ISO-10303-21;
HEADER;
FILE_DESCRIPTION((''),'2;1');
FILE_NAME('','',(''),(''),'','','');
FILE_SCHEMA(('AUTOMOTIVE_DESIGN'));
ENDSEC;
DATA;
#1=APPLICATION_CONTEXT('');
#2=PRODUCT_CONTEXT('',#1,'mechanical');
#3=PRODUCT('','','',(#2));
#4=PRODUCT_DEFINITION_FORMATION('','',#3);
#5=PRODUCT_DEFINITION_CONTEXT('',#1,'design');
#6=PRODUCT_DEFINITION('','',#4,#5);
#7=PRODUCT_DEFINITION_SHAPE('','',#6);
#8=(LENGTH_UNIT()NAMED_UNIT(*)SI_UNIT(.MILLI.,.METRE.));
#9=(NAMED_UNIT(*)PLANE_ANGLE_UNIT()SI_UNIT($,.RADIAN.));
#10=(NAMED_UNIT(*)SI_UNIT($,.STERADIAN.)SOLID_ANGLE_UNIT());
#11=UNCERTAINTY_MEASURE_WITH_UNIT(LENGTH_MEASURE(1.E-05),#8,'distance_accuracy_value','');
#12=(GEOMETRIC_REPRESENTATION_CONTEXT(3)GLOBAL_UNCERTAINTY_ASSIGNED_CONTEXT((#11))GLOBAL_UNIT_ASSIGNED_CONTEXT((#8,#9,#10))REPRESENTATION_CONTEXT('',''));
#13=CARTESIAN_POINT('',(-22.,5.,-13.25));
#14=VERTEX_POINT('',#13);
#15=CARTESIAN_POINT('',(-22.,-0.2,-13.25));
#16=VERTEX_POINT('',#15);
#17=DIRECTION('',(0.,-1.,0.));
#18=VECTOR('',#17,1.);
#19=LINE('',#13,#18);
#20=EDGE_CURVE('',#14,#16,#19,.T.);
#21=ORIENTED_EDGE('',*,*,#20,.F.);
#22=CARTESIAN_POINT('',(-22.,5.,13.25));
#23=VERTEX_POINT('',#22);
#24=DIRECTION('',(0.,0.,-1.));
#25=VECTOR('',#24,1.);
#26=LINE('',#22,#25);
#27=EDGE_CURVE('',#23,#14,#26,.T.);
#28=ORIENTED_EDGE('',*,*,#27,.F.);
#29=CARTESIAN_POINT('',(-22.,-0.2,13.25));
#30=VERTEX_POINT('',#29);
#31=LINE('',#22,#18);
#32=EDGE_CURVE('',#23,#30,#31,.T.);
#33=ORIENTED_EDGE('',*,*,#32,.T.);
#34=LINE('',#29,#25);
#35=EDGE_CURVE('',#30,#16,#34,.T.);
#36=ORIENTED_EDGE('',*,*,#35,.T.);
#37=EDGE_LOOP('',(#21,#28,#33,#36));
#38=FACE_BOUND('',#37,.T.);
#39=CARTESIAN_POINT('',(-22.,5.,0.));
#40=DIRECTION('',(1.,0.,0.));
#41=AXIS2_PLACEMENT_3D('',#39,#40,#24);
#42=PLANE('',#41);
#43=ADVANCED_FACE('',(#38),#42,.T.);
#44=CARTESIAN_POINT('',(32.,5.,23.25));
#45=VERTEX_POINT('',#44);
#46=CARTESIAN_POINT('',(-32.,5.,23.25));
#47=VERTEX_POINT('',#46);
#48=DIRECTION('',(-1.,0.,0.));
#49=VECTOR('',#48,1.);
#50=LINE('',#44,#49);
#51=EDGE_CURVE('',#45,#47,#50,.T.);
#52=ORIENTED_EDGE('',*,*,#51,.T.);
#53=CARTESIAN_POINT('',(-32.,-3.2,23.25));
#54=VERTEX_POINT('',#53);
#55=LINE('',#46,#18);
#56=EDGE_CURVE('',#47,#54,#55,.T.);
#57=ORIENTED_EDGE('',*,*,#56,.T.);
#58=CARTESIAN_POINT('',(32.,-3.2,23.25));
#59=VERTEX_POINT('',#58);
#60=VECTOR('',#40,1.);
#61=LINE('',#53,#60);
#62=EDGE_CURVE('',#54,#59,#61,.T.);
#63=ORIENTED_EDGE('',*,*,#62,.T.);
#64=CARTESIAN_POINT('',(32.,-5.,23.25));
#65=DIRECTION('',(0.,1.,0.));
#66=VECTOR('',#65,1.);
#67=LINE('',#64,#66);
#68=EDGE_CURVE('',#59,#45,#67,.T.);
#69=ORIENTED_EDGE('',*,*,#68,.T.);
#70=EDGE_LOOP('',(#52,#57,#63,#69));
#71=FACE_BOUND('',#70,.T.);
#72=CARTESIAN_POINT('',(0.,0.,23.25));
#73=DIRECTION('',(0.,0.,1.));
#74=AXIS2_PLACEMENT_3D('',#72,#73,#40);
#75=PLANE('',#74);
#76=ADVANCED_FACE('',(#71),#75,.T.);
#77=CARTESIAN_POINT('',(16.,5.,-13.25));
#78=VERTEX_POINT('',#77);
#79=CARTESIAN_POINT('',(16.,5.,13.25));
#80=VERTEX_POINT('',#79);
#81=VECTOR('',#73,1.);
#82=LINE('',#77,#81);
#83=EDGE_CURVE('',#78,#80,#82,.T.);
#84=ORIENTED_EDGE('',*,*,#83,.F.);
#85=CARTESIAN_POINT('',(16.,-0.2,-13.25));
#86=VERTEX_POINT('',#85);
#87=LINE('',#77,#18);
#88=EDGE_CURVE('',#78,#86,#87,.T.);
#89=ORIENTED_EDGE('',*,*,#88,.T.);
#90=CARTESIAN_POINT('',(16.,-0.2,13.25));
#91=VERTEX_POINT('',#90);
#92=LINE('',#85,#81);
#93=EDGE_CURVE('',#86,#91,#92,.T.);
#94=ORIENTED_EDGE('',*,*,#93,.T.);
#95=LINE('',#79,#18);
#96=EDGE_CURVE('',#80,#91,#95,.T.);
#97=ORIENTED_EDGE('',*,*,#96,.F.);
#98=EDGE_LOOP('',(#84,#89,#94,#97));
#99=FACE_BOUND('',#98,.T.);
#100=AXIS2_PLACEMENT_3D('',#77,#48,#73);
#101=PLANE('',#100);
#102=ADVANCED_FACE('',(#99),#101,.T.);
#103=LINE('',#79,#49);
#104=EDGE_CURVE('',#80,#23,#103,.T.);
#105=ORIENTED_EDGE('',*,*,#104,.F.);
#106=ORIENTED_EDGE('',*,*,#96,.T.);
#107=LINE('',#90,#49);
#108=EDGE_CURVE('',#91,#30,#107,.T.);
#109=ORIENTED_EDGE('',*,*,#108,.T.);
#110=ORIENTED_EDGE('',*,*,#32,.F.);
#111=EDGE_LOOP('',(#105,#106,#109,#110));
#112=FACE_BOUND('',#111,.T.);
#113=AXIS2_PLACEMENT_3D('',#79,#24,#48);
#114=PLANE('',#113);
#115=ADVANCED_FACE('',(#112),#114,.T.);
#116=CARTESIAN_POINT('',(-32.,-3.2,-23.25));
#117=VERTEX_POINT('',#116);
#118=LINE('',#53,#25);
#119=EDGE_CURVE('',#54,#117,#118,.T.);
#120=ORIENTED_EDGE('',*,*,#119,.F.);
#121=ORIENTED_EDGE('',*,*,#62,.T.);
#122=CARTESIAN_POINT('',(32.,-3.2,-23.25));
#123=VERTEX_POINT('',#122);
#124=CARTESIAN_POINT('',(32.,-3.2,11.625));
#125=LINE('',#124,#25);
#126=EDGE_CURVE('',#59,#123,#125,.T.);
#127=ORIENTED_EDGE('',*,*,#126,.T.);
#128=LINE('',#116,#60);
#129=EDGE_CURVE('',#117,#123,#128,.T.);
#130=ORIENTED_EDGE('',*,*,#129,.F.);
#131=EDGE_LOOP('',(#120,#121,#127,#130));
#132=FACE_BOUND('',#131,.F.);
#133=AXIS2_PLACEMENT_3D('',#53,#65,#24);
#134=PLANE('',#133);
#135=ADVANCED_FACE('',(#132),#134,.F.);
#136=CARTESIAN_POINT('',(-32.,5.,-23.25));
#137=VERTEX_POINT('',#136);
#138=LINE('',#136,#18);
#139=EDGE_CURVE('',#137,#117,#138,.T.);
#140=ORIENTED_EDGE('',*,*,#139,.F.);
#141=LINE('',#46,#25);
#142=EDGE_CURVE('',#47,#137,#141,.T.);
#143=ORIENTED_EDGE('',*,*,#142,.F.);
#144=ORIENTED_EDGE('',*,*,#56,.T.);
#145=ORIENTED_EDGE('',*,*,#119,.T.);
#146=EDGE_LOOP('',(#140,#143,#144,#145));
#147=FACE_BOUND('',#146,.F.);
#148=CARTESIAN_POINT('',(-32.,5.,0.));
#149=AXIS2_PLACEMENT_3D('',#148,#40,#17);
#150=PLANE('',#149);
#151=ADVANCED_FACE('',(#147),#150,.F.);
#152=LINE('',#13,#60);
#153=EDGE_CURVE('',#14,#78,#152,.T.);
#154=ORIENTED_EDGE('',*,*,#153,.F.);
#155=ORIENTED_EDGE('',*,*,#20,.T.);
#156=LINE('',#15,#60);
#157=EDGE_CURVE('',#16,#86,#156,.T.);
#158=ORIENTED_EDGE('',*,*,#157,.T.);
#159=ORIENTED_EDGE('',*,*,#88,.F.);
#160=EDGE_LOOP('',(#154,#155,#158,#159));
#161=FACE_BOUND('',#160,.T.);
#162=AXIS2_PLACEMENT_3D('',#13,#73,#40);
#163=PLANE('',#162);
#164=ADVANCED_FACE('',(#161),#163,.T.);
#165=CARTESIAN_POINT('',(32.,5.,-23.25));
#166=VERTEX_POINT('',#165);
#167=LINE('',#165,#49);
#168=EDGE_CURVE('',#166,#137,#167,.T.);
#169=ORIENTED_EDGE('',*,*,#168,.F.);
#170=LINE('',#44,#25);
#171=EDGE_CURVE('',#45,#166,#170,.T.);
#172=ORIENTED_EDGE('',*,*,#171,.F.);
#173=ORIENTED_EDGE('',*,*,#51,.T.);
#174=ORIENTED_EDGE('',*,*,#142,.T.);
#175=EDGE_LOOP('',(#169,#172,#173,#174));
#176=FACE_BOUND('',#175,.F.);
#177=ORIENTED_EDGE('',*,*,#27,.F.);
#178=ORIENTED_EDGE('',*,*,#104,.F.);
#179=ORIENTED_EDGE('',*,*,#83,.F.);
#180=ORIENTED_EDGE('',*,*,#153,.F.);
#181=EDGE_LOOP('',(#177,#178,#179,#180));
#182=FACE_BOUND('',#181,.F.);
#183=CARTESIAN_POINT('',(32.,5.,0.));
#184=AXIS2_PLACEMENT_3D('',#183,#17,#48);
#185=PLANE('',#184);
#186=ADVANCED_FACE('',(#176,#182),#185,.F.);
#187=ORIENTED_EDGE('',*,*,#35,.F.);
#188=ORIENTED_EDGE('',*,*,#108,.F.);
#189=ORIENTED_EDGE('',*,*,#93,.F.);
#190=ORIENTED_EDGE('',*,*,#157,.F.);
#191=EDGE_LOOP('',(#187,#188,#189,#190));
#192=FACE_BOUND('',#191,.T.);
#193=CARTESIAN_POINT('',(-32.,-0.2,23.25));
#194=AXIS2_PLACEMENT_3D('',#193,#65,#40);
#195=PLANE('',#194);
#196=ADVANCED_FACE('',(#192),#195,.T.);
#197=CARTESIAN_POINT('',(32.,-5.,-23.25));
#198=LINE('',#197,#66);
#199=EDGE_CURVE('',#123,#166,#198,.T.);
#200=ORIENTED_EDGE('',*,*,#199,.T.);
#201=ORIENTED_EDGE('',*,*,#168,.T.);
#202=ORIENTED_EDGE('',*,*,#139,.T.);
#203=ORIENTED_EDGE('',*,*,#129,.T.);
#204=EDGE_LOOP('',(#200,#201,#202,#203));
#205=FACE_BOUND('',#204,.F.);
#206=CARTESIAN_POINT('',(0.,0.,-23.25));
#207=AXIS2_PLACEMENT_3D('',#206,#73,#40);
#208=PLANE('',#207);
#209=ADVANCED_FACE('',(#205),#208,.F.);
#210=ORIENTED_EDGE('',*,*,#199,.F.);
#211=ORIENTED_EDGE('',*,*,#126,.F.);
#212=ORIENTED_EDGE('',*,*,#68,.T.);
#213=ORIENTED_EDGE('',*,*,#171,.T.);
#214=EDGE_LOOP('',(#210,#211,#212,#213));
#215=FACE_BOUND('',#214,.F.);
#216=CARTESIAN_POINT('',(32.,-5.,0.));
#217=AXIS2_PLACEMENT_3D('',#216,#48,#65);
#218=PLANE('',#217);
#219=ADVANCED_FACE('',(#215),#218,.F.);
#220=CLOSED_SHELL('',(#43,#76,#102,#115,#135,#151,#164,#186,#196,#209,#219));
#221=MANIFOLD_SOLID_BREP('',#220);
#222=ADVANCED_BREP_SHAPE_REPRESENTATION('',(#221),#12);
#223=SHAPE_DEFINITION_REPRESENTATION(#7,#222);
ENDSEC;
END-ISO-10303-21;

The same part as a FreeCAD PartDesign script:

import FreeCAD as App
import Part
import Sketcher
from FreeCAD import Vector

doc = App.newDocument("Part")
body = doc.addObject("PartDesign::Body", "Body")

# Sketch on XY plane
sketch1 = body.newObject("Sketcher::SketchObject", "Sketch")
sketch1.AttachmentSupport = (doc.getObject("XY_Plane"), [""])
sketch1.MapMode = "FlatFace"
sketch1.addGeometry([
    Part.LineSegment(Vector(-32, 5, 0), Vector(-32, -5, 0)),
    Part.LineSegment(Vector(-32, -5, 0), Vector(32, -5, 0)),
    Part.LineSegment(Vector(32, -5, 0), Vector(32, 5, 0)),
    Part.LineSegment(Vector(32, 5, 0), Vector(-32, 5, 0)),
], False)
sketch1.addConstraint([
    Sketcher.Constraint("Coincident", 0, 2, 1, 1),
    Sketcher.Constraint("Coincident", 1, 2, 2, 1),
    Sketcher.Constraint("Coincident", 2, 2, 3, 1),
    Sketcher.Constraint("Coincident", 3, 2, 0, 1),
    Sketcher.Constraint("Vertical", 0),
    Sketcher.Constraint("Horizontal", 1),
    Sketcher.Constraint("Vertical", 2),
    Sketcher.Constraint("Horizontal", 3),
    Sketcher.Constraint("Symmetric", 0, 2, 2, 2, -1, 1),
    Sketcher.Constraint("DistanceX", 1, 1, 1, 2, 64.0),
    Sketcher.Constraint("DistanceY", 0, 2, 0, 1, 10.0),
])
pad1 = body.newObject("PartDesign::Pad", "Pad")
pad1.Profile = sketch1
pad1.Length = 46.5
pad1.Midplane = True

# Sketch on XZ plane
sketch2 = body.newObject("Sketcher::SketchObject", "Sketch001")
sketch2.AttachmentSupport = (doc.getObject("XZ_Plane"), [""])
sketch2.MapMode = "FlatFace"
sketch2.AttachmentOffset = App.Placement(Vector(0, 0, -5), App.Rotation())
sketch2.addGeometry([
    Part.LineSegment(Vector(-22, -13, 0), Vector(-22, 13, 0)),
    Part.LineSegment(Vector(-22, 13, 0), Vector(16, 13, 0)),
    Part.LineSegment(Vector(16, 13, 0), Vector(16, -13, 0)),
    Part.LineSegment(Vector(16, -13, 0), Vector(-22, -13, 0)),
], False)
sketch2.addConstraint([
    Sketcher.Constraint("Coincident", 0, 2, 1, 1),
    Sketcher.Constraint("Coincident", 1, 2, 2, 1),
    Sketcher.Constraint("Coincident", 2, 2, 3, 1),
    Sketcher.Constraint("Coincident", 3, 2, 0, 1),
    Sketcher.Constraint("Vertical", 0),
    Sketcher.Constraint("Horizontal", 1),
    Sketcher.Constraint("Vertical", 2),
    Sketcher.Constraint("Horizontal", 3),
    Sketcher.Constraint("DistanceX", 1, 1, 1, 2, 38.0),
    Sketcher.Constraint("DistanceY", 0, 1, 0, 2, 26.5),
    Sketcher.Constraint("DistanceY", -1, 1, 0, 2, 13.25),
    Sketcher.Constraint("DistanceX", 0, 2, -1, 1, 22.0),
])
pocket1 = body.newObject("PartDesign::Pocket", "Pocket")
pocket1.Profile = sketch2
pocket1.Length = 5.2
pocket1.Reversed = True

# Sketch on YZ plane
sketch3 = body.newObject("Sketcher::SketchObject", "Sketch002")
sketch3.AttachmentSupport = (doc.getObject("YZ_Plane"), [""])
sketch3.MapMode = "FlatFace"
sketch3.AttachmentOffset = App.Placement(Vector(0, 0, -32), App.Rotation())
sketch3.addGeometry([
    Part.LineSegment(Vector(-3.2, -23.2, 0), Vector(-5, -23.2, 0)),
    Part.LineSegment(Vector(-5, -23.2, 0), Vector(-5, 23.2, 0)),
    Part.LineSegment(Vector(-5, 23.2, 0), Vector(-3.2, 23.2, 0)),
    Part.LineSegment(Vector(-3.2, 23.2, 0), Vector(-3.2, -23.2, 0)),
], False)
sketch3.addConstraint([
    Sketcher.Constraint("Coincident", 0, 2, 1, 1),
    Sketcher.Constraint("Coincident", 1, 2, 2, 1),
    Sketcher.Constraint("Coincident", 2, 2, 3, 1),
    Sketcher.Constraint("Coincident", 3, 2, 0, 1),
    Sketcher.Constraint("Horizontal", 0),
    Sketcher.Constraint("Vertical", 1),
    Sketcher.Constraint("Horizontal", 2),
    Sketcher.Constraint("Vertical", 3),
    Sketcher.Constraint("DistanceX", 0, 2, 0, 1, 1.8),
    Sketcher.Constraint("DistanceY", 1, 1, 1, 2, 46.5),
    Sketcher.Constraint("DistanceX", 0, 2, -1, 1, 5.0),
    Sketcher.Constraint("DistanceY", 0, 2, -1, 1, 23.25),
])
pocket2 = body.newObject("PartDesign::Pocket", "Pocket001")
pocket2.Profile = sketch3
pocket2.Type = "ThroughAll"
pocket2.Reversed = True

doc.recompute()
